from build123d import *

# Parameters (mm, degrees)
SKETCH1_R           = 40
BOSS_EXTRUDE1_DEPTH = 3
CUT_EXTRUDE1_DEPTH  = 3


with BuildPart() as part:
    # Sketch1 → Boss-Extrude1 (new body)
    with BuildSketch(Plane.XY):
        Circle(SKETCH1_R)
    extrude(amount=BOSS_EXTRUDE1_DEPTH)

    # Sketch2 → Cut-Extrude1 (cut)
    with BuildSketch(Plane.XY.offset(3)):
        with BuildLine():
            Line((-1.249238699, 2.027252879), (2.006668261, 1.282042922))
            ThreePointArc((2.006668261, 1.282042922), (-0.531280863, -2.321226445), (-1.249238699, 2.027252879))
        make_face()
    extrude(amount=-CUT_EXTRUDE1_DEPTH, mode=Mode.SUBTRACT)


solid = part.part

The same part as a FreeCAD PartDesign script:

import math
import FreeCAD as App
import Part
import Sketcher
from FreeCAD import Vector
Q = App.Units.Quantity

doc = App.newDocument("Part")
params = doc.addObject("Spreadsheet::Sheet", "Params")
for row, (alias, value) in enumerate([
    ("sketch1_diameter", "80 mm"),
    ("pad1_length", "3 mm"),
    ("pocket1_length", "3 mm"),
], start=1):
    params.set(f"A{row}", alias)
    params.set(f"B{row}", "=" + value)
    params.setAlias(f"B{row}", alias)

body = doc.addObject("PartDesign::Body", "Body")

# Sketch on XY plane
sketch1 = body.newObject("Sketcher::SketchObject", "Sketch")
sketch1.AttachmentSupport = (doc.getObject("XY_Plane"), [""])
sketch1.MapMode = "FlatFace"
sketch1.addGeometry(Part.Circle(Vector(0, 0, 0), Vector(0, 0, 1), 40), False)
sketch1.addConstraint(Sketcher.Constraint("Coincident", 0, 3, -1, 1))
sketch1.addConstraint(Sketcher.Constraint("Diameter", 0, Q("80 mm")))
sketch1.setExpression("Constraints[1]", "Params.sketch1_diameter")
pad1 = body.newObject("PartDesign::Pad", "Pad")
pad1.Profile = sketch1
pad1.setExpression("Length", "Params.pad1_length")

# Sketch on XY plane
sketch2 = body.newObject("Sketcher::SketchObject", "Sketch001")
sketch2.AttachmentSupport = (doc.getObject("XY_Plane"), [""])
sketch2.MapMode = "FlatFace"
sketch2.AttachmentOffset = App.Placement(Vector(0, 0, 3), App.Rotation())
sketch2.addGeometry(Part.LineSegment(Vector(2.006668, 1.282043, 0), Vector(-1.249239, 2.027253, 0)), False)
sketch2.addGeometry(Part.ArcOfCircle(Part.Circle(Vector(0, 0, 0), Vector(0, 0, 1), 2.38125), math.radians(121.642307), math.radians(392.574156)), False)
sketch2.addConstraint(Sketcher.Constraint("Coincident", 0, 1, 1, 2))
sketch2.addConstraint(Sketcher.Constraint("Coincident", 1, 1, 0, 2))
sketch2.addConstraint(Sketcher.Constraint("Coincident", 1, 3, -1, 1))
sketch2.addConstraint(Sketcher.Constraint("Radius", 1, Q("2.38125 mm")))
sketch2.addConstraint(Sketcher.Constraint("Distance", 0, Q("3.3401 mm")))
sketch2.addConstraint(Sketcher.Constraint("DistanceX", -1, 1, 0, 1, Q("2.006668 mm")))
pocket1 = body.newObject("PartDesign::Pocket", "Pocket")
pocket1.Profile = sketch2
pocket1.setExpression("Length", "Params.pocket1_length")

doc.recompute()
